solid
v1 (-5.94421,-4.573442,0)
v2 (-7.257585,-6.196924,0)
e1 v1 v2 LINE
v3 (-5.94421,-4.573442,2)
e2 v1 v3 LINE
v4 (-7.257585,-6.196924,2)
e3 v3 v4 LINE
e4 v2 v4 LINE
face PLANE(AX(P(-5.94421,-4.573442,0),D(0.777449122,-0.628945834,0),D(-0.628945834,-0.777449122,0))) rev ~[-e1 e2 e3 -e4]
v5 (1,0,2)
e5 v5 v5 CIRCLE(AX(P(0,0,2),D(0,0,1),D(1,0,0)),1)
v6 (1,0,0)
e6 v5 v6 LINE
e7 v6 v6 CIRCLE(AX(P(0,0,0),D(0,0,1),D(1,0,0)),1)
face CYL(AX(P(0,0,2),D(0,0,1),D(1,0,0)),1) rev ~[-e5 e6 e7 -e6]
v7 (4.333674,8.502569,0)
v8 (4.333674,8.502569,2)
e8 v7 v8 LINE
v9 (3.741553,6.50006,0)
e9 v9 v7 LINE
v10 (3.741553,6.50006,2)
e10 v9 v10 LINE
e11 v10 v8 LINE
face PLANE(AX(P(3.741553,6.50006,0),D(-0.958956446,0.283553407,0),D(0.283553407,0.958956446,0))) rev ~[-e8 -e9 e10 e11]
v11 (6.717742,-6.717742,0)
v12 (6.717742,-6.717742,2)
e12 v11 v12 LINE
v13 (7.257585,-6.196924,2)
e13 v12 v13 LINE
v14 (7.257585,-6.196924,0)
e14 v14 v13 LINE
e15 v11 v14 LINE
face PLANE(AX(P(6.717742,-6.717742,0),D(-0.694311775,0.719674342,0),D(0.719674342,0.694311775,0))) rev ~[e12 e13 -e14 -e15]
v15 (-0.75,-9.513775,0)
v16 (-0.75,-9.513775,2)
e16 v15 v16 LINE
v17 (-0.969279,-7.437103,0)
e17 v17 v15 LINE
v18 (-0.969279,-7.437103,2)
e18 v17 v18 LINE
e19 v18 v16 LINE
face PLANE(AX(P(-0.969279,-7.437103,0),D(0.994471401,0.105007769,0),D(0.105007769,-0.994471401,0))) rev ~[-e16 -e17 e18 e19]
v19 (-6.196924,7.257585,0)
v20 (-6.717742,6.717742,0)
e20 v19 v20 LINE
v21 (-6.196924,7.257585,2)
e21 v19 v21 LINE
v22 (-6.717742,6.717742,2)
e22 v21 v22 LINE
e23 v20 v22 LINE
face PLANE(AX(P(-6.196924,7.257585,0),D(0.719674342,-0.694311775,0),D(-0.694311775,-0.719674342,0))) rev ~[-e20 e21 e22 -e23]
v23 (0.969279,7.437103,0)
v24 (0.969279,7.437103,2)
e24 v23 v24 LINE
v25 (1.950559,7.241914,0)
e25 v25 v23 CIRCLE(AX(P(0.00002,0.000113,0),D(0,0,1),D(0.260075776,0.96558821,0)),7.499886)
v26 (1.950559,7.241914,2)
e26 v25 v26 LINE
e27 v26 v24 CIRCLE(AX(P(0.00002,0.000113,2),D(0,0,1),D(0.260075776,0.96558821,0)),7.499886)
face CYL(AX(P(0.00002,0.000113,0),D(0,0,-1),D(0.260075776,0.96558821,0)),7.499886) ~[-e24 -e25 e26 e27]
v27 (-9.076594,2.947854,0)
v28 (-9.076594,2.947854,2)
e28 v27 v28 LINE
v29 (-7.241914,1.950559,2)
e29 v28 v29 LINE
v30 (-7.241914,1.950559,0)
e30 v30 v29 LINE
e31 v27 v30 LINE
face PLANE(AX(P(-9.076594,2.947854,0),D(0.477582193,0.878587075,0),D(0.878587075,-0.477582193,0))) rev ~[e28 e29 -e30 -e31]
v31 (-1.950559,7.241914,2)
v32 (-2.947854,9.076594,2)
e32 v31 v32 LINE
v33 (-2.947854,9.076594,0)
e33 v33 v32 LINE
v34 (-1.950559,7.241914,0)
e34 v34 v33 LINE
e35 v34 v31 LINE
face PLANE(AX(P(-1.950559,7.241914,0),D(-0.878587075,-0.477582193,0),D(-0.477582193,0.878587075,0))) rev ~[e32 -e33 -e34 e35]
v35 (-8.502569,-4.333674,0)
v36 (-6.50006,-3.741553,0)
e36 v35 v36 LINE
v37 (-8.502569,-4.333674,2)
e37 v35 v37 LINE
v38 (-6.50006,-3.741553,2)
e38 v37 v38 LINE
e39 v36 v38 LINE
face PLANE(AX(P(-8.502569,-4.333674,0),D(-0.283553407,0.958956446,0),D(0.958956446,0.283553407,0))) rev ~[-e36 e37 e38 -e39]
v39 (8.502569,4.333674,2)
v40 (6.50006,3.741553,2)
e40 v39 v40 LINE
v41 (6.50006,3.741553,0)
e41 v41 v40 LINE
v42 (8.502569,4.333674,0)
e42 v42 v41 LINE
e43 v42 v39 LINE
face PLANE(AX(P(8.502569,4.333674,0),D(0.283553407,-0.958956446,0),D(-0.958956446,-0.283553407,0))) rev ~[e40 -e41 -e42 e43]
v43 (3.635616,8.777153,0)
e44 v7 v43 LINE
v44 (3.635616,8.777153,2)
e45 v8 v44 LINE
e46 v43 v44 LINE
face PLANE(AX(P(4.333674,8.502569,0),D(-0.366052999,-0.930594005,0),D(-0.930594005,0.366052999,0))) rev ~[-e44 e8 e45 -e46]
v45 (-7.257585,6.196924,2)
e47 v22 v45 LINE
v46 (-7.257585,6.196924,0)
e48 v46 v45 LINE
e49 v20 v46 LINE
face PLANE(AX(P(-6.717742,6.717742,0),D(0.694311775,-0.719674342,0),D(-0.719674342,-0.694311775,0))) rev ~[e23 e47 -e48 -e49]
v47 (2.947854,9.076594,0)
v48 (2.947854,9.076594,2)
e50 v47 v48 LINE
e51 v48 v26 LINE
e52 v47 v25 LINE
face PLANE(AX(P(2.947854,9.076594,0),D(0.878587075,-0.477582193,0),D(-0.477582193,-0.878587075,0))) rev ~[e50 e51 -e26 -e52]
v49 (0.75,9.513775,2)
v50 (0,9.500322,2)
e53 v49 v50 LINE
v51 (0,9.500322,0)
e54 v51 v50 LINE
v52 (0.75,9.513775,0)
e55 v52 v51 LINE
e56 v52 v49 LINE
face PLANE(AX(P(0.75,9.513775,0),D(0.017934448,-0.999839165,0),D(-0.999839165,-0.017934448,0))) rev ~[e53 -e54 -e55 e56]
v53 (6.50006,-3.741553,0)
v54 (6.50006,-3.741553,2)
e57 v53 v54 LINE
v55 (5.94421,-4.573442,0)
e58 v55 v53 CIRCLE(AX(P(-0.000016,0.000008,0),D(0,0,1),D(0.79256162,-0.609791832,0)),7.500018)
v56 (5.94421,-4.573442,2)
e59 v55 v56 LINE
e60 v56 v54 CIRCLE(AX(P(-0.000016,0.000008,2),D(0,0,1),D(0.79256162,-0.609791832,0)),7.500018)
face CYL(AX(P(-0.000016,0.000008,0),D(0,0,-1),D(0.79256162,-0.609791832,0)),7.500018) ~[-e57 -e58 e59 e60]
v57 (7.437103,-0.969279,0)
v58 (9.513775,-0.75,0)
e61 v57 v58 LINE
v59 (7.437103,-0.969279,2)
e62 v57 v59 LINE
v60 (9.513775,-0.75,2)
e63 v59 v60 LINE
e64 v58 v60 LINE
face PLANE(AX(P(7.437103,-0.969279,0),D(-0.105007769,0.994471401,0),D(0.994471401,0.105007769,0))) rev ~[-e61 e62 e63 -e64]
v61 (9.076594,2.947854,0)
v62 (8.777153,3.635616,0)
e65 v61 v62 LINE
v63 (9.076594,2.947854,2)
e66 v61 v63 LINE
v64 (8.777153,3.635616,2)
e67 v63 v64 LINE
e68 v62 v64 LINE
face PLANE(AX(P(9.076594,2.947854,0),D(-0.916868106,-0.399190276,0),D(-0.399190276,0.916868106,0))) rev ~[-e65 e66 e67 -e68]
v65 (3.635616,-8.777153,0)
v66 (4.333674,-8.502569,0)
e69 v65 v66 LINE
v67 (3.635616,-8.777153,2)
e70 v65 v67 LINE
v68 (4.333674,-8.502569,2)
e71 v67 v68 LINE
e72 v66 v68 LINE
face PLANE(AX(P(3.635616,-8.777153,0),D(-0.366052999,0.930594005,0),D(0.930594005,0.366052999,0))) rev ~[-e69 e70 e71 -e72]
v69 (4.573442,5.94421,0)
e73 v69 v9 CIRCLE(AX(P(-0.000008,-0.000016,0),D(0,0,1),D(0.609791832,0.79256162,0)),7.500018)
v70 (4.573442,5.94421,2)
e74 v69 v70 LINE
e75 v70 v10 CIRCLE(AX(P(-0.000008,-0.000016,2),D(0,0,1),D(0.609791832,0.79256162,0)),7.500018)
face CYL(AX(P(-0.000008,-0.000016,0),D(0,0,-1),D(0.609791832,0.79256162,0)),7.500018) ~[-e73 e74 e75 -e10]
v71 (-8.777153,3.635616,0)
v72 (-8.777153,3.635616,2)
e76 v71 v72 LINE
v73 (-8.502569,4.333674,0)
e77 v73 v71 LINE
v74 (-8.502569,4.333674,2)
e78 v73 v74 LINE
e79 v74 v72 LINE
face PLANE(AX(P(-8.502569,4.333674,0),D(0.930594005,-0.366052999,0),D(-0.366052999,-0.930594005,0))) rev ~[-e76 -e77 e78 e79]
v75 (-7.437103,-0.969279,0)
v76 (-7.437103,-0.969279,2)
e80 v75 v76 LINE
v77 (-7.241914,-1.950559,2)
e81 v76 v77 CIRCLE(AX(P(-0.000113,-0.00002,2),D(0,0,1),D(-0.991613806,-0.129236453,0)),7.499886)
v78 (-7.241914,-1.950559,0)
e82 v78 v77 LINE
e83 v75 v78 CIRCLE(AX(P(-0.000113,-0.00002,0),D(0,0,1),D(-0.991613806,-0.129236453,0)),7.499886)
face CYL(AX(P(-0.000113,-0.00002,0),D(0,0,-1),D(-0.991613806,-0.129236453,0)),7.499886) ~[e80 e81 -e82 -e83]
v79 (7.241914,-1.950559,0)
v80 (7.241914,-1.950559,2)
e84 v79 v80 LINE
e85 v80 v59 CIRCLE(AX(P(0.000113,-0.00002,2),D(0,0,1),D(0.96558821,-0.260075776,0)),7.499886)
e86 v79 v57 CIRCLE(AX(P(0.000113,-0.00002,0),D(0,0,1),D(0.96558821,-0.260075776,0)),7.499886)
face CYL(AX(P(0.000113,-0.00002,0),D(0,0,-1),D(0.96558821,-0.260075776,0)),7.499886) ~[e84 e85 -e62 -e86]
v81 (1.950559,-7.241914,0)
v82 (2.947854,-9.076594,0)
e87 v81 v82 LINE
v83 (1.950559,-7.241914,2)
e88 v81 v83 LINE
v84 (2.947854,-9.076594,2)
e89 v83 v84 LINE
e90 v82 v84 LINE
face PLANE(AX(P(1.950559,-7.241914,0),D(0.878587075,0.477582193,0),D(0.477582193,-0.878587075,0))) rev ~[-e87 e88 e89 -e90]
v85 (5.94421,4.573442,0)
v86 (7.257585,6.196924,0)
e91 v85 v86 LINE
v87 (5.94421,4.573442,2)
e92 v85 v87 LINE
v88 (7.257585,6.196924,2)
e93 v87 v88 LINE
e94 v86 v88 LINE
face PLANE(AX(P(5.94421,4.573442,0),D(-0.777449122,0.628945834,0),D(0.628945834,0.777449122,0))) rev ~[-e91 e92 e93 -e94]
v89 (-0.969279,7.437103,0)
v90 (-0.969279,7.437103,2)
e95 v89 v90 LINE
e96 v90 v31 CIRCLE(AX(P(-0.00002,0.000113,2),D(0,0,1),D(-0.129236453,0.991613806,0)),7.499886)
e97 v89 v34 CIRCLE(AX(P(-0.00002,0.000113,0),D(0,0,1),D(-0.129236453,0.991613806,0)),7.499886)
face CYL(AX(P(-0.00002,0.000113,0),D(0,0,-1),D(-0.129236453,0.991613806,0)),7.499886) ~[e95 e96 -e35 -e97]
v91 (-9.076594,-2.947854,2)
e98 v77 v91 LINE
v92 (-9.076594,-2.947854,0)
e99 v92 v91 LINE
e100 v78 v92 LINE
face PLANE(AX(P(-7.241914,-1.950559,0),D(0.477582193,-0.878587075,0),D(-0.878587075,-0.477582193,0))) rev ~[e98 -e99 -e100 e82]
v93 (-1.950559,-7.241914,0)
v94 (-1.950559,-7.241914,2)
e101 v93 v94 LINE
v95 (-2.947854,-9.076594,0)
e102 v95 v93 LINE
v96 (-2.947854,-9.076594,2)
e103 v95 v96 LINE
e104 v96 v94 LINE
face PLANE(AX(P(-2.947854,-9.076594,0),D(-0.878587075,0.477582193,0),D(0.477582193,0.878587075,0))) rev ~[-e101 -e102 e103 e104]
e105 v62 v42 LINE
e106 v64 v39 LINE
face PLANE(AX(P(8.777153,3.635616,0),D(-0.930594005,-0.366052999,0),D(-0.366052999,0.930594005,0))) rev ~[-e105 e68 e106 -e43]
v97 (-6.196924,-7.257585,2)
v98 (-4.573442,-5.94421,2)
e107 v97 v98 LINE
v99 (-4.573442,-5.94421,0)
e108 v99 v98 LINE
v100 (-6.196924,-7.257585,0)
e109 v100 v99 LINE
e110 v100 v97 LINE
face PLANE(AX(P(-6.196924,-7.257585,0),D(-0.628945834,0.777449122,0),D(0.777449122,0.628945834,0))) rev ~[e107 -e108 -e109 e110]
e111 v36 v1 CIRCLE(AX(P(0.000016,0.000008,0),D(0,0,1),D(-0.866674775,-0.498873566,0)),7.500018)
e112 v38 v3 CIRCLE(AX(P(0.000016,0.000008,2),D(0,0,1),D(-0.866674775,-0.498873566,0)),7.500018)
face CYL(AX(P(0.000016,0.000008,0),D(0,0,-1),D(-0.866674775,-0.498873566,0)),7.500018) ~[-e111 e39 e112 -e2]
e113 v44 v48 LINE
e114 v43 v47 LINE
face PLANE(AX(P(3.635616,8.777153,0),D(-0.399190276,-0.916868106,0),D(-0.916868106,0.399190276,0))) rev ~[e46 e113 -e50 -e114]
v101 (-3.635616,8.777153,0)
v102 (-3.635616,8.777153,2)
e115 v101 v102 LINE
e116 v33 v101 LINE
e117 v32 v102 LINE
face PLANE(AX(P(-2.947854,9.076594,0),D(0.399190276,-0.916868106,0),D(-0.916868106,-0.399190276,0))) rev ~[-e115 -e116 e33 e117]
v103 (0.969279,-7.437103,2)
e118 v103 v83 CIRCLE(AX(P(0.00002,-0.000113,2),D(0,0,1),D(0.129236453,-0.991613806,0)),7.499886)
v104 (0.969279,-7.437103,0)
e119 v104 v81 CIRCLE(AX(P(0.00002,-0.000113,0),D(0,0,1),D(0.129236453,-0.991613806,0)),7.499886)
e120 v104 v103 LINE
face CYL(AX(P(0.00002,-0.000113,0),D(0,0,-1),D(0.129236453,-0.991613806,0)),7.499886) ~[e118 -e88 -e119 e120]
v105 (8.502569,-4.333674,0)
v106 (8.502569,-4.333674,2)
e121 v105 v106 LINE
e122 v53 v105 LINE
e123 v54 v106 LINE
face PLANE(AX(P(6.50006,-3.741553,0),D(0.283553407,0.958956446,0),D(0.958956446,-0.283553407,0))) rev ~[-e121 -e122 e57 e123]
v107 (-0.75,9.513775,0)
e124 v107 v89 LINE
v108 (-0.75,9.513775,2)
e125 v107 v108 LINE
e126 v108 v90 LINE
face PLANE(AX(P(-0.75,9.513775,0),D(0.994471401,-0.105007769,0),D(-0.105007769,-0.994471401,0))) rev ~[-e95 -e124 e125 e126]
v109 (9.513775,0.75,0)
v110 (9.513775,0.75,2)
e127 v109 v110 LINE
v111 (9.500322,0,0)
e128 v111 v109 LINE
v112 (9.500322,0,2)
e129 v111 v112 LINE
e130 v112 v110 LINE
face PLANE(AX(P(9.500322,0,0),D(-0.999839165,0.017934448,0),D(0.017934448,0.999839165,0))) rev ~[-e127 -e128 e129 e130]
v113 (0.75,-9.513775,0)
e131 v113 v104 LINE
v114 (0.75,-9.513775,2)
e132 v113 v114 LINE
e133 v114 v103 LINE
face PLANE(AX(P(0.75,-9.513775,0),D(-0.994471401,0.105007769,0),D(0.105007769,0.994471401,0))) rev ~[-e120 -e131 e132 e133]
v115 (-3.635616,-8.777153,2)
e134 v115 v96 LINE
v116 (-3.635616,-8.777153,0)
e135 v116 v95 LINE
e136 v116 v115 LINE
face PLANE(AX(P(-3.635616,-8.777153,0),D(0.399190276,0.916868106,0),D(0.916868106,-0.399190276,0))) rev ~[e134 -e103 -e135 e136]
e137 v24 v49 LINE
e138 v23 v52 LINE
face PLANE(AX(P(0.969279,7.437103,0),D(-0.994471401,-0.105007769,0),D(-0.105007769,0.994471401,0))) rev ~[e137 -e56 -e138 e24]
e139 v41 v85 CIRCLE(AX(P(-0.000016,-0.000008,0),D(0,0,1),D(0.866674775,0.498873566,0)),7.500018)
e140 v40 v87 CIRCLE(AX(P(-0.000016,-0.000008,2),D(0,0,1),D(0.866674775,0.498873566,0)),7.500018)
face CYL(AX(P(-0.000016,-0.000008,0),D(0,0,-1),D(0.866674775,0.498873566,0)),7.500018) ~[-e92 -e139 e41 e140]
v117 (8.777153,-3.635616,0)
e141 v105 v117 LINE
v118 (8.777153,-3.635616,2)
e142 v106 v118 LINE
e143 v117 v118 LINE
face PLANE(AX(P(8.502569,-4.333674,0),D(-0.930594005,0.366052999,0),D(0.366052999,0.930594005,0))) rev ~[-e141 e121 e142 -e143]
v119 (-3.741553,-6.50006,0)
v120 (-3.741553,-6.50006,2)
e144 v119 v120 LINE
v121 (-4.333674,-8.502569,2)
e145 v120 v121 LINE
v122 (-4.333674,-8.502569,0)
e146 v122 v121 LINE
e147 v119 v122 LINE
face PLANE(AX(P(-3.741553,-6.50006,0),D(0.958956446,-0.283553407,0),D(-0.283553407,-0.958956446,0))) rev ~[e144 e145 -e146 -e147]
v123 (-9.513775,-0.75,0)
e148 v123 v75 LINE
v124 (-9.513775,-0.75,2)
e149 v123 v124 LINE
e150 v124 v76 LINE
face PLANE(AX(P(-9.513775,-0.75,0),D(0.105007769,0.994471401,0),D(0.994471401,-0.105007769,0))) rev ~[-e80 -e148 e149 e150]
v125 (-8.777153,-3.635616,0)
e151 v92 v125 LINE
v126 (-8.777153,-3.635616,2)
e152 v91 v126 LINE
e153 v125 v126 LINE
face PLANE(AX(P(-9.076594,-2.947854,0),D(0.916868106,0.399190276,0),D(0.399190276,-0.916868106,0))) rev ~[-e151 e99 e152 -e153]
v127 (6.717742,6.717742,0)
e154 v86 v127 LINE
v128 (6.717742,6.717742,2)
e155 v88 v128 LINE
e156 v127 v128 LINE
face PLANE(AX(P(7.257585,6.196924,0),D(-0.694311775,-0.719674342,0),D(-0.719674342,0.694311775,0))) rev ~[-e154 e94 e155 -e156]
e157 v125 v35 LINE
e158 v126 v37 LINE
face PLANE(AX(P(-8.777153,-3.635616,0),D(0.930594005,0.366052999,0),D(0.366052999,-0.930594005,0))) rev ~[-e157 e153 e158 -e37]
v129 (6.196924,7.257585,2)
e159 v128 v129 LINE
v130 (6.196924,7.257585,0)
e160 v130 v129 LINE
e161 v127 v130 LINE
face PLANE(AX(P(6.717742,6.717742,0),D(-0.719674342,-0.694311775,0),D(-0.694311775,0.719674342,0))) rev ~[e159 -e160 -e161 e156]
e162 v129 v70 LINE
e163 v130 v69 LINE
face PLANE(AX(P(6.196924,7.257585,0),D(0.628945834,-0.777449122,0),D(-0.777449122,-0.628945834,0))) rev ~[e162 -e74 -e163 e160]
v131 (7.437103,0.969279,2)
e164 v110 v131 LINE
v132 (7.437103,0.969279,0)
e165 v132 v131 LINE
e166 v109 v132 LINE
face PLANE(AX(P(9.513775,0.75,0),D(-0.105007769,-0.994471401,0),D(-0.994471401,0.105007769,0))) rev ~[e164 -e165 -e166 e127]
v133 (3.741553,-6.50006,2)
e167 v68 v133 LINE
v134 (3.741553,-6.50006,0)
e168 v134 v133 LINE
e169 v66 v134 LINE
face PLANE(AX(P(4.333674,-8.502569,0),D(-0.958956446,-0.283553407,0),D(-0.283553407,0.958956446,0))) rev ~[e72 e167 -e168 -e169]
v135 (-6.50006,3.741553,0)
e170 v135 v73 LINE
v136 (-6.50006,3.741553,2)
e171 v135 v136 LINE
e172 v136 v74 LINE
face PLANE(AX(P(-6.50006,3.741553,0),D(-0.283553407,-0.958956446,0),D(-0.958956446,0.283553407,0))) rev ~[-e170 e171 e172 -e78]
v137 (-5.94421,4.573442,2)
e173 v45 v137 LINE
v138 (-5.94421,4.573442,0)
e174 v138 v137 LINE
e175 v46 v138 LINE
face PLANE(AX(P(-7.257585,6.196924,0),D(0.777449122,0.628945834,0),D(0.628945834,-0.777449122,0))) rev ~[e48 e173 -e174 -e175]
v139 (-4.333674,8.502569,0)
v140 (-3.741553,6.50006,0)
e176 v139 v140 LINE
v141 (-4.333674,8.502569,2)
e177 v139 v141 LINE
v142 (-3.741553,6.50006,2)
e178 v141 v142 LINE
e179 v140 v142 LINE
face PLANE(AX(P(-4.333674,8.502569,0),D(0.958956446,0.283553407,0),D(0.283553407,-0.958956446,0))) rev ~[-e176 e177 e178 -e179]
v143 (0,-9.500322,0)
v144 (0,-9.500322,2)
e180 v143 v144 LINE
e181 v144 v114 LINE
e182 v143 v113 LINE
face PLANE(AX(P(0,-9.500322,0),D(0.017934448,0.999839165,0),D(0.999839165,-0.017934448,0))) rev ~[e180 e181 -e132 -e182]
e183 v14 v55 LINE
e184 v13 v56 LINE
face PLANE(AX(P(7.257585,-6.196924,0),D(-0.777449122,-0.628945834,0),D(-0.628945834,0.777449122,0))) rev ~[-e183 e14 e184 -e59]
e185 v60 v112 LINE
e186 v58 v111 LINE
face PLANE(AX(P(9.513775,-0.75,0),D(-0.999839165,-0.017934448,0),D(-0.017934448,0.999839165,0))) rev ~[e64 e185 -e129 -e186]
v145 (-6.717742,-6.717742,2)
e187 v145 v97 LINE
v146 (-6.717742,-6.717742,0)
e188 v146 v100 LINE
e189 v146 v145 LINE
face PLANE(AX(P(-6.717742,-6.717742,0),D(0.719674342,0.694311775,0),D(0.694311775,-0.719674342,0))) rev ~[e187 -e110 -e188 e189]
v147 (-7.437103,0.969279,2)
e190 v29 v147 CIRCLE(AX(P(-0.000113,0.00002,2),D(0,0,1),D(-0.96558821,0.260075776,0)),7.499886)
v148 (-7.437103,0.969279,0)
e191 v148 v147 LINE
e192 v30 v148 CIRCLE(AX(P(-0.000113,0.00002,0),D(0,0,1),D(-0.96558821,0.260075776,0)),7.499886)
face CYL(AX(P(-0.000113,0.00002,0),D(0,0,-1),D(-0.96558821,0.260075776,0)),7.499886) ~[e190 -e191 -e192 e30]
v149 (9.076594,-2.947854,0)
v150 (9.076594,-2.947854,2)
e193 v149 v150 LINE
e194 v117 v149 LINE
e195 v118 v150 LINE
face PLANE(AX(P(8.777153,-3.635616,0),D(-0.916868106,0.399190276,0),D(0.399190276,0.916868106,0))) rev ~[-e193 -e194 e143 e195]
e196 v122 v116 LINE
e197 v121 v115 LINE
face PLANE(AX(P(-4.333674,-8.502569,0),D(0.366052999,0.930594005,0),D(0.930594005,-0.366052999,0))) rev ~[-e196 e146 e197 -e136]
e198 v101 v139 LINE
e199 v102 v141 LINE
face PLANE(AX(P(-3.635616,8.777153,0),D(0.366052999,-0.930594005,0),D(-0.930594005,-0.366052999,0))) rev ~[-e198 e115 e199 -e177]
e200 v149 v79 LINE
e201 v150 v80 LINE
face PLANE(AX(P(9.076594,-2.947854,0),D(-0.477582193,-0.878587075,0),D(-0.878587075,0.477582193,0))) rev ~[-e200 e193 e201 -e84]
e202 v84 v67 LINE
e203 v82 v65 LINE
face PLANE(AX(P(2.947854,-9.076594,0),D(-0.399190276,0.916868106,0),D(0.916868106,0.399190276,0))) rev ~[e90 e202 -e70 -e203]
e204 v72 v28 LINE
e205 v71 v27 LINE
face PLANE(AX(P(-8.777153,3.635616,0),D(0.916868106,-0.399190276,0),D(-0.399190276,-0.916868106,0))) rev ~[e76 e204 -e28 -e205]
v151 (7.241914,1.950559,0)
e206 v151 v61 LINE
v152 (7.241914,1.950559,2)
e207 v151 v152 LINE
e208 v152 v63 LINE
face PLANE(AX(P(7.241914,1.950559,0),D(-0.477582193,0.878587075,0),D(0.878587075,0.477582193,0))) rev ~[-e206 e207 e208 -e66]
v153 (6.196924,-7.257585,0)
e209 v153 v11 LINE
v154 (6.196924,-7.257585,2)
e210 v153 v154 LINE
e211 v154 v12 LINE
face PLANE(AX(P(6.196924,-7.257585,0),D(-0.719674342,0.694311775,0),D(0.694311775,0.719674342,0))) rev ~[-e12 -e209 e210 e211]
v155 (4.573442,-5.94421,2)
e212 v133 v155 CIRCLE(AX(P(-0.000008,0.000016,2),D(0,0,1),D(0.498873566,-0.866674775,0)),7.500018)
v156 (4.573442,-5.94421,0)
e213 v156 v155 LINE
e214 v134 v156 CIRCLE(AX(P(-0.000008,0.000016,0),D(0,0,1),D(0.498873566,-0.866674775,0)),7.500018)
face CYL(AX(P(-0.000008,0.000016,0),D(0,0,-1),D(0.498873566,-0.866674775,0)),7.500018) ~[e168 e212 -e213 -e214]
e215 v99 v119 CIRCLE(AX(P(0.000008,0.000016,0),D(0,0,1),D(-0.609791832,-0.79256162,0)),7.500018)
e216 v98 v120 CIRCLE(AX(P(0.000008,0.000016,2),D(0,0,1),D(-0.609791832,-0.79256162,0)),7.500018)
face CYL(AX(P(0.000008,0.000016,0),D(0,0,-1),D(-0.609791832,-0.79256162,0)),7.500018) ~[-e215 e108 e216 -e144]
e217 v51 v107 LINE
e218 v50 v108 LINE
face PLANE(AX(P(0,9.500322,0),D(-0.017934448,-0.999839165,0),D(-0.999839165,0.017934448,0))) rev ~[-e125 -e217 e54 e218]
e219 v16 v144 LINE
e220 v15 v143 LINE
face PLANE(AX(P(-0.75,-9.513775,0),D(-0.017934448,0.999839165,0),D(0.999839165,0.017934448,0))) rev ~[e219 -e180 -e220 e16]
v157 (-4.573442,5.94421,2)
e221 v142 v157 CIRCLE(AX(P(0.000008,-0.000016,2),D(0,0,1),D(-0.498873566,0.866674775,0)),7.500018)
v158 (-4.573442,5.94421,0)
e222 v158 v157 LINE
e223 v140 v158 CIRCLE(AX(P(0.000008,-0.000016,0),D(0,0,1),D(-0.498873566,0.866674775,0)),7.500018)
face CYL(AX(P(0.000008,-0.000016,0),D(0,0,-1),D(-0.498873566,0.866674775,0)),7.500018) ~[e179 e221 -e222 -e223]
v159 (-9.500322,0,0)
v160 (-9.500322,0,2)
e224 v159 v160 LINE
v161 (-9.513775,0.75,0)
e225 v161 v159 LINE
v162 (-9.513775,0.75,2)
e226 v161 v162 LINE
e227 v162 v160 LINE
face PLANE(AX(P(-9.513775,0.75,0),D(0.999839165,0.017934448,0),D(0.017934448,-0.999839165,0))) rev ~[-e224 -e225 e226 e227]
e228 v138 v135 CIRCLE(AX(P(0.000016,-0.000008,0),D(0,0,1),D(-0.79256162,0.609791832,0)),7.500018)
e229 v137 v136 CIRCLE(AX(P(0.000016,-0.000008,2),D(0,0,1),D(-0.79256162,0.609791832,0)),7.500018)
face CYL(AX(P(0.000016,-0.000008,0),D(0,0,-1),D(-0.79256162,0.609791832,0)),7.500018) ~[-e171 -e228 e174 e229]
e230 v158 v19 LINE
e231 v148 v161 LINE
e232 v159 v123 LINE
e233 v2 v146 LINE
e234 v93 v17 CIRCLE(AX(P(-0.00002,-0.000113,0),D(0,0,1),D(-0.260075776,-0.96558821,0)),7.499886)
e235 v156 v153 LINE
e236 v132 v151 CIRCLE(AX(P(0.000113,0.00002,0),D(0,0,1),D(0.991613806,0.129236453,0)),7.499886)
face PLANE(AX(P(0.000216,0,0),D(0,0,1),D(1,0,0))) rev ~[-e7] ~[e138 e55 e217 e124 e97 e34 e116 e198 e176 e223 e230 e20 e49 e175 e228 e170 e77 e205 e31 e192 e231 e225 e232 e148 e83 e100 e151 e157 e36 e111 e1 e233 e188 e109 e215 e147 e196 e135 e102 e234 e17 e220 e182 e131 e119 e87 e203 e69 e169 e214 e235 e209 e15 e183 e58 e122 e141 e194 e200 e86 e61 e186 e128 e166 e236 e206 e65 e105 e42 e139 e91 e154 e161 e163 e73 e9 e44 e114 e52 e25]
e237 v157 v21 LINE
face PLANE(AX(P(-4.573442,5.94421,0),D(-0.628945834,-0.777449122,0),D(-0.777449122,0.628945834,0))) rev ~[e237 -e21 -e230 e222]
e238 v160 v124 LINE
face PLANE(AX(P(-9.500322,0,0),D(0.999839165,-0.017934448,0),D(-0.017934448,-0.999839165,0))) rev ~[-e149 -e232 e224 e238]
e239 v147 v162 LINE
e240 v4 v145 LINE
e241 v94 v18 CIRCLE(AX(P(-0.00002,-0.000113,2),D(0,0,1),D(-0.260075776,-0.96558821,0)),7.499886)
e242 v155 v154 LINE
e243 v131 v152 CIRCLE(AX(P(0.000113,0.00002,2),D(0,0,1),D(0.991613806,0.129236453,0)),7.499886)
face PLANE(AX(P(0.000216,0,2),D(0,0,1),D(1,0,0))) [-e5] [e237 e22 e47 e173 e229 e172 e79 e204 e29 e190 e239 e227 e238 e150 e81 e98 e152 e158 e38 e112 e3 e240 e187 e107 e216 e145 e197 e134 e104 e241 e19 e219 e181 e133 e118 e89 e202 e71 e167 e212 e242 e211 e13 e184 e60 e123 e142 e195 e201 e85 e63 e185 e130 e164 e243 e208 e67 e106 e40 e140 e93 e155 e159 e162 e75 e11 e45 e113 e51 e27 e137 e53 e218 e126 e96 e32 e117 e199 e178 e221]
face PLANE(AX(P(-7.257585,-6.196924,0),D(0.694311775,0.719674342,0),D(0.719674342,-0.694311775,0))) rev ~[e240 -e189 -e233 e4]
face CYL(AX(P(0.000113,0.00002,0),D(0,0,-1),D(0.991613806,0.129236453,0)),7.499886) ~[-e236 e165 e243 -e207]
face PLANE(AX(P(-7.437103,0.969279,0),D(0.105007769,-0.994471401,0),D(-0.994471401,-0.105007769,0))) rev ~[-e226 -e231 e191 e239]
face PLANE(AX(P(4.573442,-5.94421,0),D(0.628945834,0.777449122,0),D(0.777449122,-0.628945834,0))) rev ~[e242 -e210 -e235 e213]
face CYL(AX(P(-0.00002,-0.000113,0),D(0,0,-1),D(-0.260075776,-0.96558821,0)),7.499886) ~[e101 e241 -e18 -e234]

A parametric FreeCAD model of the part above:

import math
import FreeCAD as App
import Part
import Sketcher
from FreeCAD import Vector
Q = App.Units.Quantity

doc = App.newDocument("Part")
params = doc.addObject("Spreadsheet::Sheet", "Params")
for row, (alias, value) in enumerate([
    ("pad1_length", "2 mm"),
    ("sketch2_diameter", "2 mm"),
], start=1):
    params.set(f"A{row}", alias)
    params.set(f"B{row}", "=" + value)
    params.setAlias(f"B{row}", alias)

body = doc.addObject("PartDesign::Body", "Body")

# Sketch on XY plane
sketch1 = body.newObject("Sketcher::SketchObject", "Sketch")
sketch1.AttachmentSupport = (doc.getObject("XY_Plane"), [""])
sketch1.MapMode = "FlatFace"
sketch1.addGeometry([
    Part.ArcOfCircle(Part.Circle(Vector(0.000113, 0.00002, 0), Vector(0, 0, 1), 7.499886), math.radians(7.425472), math.radians(15.074558)),  # 0
    Part.LineSegment(Vector(7.241914, 1.950559, 0), Vector(9.076594, 2.947854, 0)),  # 1
    Part.LineSegment(Vector(9.076594, 2.947854, 0), Vector(8.777153, 3.635616, 0)),  # 2
    Part.LineSegment(Vector(8.777153, 3.635616, 0), Vector(8.502569, 4.333674, 0)),  # 3
    Part.LineSegment(Vector(8.502569, 4.333674, 0), Vector(6.50006, 3.741553, 0)),  # 4
    Part.ArcOfCircle(Part.Circle(Vector(-0.000016, -0.000008, 0), Vector(0, 0, 1), 7.500018), math.radians(29.925504), math.radians(37.574453)),  # 5
    Part.LineSegment(Vector(5.94421, 4.573442, 0), Vector(7.257585, 6.196924, 0)),  # 6
    Part.LineSegment(Vector(7.257585, 6.196924, 0), Vector(6.717742, 6.717742, 0)),  # 7
    Part.LineSegment(Vector(6.717742, 6.717742, 0), Vector(6.196924, 7.257585, 0)),  # 8
    Part.LineSegment(Vector(6.196924, 7.257585, 0), Vector(4.573442, 5.94421, 0)),  # 9
    Part.ArcOfCircle(Part.Circle(Vector(-0.000008, -0.000016, 0), Vector(0, 0, 1), 7.500018), math.radians(52.425547), math.radians(60.074496)),  # 10
    Part.LineSegment(Vector(3.741553, 6.50006, 0), Vector(4.333674, 8.502569, 0)),  # 11
    Part.LineSegment(Vector(4.333674, 8.502569, 0), Vector(3.635616, 8.777153, 0)),  # 12
    Part.LineSegment(Vector(3.635616, 8.777153, 0), Vector(2.947854, 9.076594, 0)),  # 13
    Part.LineSegment(Vector(2.947854, 9.076594, 0), Vector(1.950559, 7.241914, 0)),  # 14
    Part.ArcOfCircle(Part.Circle(Vector(0.00002, 0.000113, 0), Vector(0, 0, 1), 7.499886), math.radians(74.925442), math.radians(82.574528)),  # 15
    Part.LineSegment(Vector(0.969279, 7.437103, 0), Vector(0.75, 9.513775, 0)),  # 16
    Part.LineSegment(Vector(0.75, 9.513775, 0), Vector(0, 9.500322, 0)),  # 17
    Part.LineSegment(Vector(0, 9.500322, 0), Vector(-0.75, 9.513775, 0)),  # 18
    Part.LineSegment(Vector(-0.75, 9.513775, 0), Vector(-0.969279, 7.437103, 0)),  # 19
    Part.ArcOfCircle(Part.Circle(Vector(-0.00002, 0.000113, 0), Vector(0, 0, 1), 7.499886), math.radians(97.425472), math.radians(105.074558)),  # 20
    Part.LineSegment(Vector(-1.950559, 7.241914, 0), Vector(-2.947854, 9.076594, 0)),  # 21
    Part.LineSegment(Vector(-2.947854, 9.076594, 0), Vector(-3.635616, 8.777153, 0)),  # 22
    Part.LineSegment(Vector(-3.635616, 8.777153, 0), Vector(-4.333674, 8.502569, 0)),  # 23
    Part.LineSegment(Vector(-4.333674, 8.502569, 0), Vector(-3.741553, 6.50006, 0)),  # 24
    Part.ArcOfCircle(Part.Circle(Vector(0.000008, -0.000016, 0), Vector(0, 0, 1), 7.500018), math.radians(119.925504), math.radians(127.574453)),  # 25
    Part.LineSegment(Vector(-4.573442, 5.94421, 0), Vector(-6.196924, 7.257585, 0)),  # 26
    Part.LineSegment(Vector(-6.196924, 7.257585, 0), Vector(-6.717742, 6.717742, 0)),  # 27
    Part.LineSegment(Vector(-6.717742, 6.717742, 0), Vector(-7.257585, 6.196924, 0)),  # 28
    Part.LineSegment(Vector(-7.257585, 6.196924, 0), Vector(-5.94421, 4.573442, 0)),  # 29
    Part.ArcOfCircle(Part.Circle(Vector(0.000016, -0.000008, 0), Vector(0, 0, 1), 7.500018), math.radians(142.425547), math.radians(150.074496)),  # 30
    Part.LineSegment(Vector(-6.50006, 3.741553, 0), Vector(-8.502569, 4.333674, 0)),  # 31
    Part.LineSegment(Vector(-8.502569, 4.333674, 0), Vector(-8.777153, 3.635616, 0)),  # 32
    Part.LineSegment(Vector(-8.777153, 3.635616, 0), Vector(-9.076594, 2.947854, 0)),  # 33
    Part.LineSegment(Vector(-9.076594, 2.947854, 0), Vector(-7.241914, 1.950559, 0)),  # 34
    Part.ArcOfCircle(Part.Circle(Vector(-0.000113, 0.00002, 0), Vector(0, 0, 1), 7.499886), math.radians(164.925442), math.radians(172.574528)),  # 35
    Part.LineSegment(Vector(-7.437103, 0.969279, 0), Vector(-9.513775, 0.75, 0)),  # 36
    Part.LineSegment(Vector(-9.513775, 0.75, 0), Vector(-9.500322, 0, 0)),  # 37
    Part.LineSegment(Vector(-9.500322, 0, 0), Vector(-9.513775, -0.75, 0)),  # 38
    Part.LineSegment(Vector(-9.513775, -0.75, 0), Vector(-7.437103, -0.969279, 0)),  # 39
    Part.ArcOfCircle(Part.Circle(Vector(-0.000113, -0.00002, 0), Vector(0, 0, 1), 7.499886), math.radians(-172.574528), math.radians(-164.925442)),  # 40
    Part.LineSegment(Vector(-7.241914, -1.950559, 0), Vector(-9.076594, -2.947854, 0)),  # 41
    Part.LineSegment(Vector(-9.076594, -2.947854, 0), Vector(-8.777153, -3.635616, 0)),  # 42
    Part.LineSegment(Vector(-8.777153, -3.635616, 0), Vector(-8.502569, -4.333674, 0)),  # 43
    Part.LineSegment(Vector(-8.502569, -4.333674, 0), Vector(-6.50006, -3.741553, 0)),  # 44
    Part.ArcOfCircle(Part.Circle(Vector(0.000016, 0.000008, 0), Vector(0, 0, 1), 7.500018), math.radians(-150.074496), math.radians(-142.425547)),  # 45
    Part.LineSegment(Vector(-5.94421, -4.573442, 0), Vector(-7.257585, -6.196924, 0)),  # 46
    Part.LineSegment(Vector(-7.257585, -6.196924, 0), Vector(-6.717742, -6.717742, 0)),  # 47
    Part.LineSegment(Vector(-6.717742, -6.717742, 0), Vector(-6.196924, -7.257585, 0)),  # 48
    Part.LineSegment(Vector(-6.196924, -7.257585, 0), Vector(-4.573442, -5.94421, 0)),  # 49
    Part.ArcOfCircle(Part.Circle(Vector(0.000008, 0.000016, 0), Vector(0, 0, 1), 7.500018), math.radians(-127.574453), math.radians(-119.925504)),  # 50
    Part.LineSegment(Vector(-3.741553, -6.50006, 0), Vector(-4.333674, -8.502569, 0)),  # 51
    Part.LineSegment(Vector(-4.333674, -8.502569, 0), Vector(-3.635616, -8.777153, 0)),  # 52
    Part.LineSegment(Vector(-3.635616, -8.777153, 0), Vector(-2.947854, -9.076594, 0)),  # 53
    Part.LineSegment(Vector(-2.947854, -9.076594, 0), Vector(-1.950559, -7.241914, 0)),  # 54
    Part.ArcOfCircle(Part.Circle(Vector(-0.00002, -0.000113, 0), Vector(0, 0, 1), 7.499886), math.radians(-105.074558), math.radians(-97.425472)),  # 55
    Part.LineSegment(Vector(-0.969279, -7.437103, 0), Vector(-0.75, -9.513775, 0)),  # 56
    Part.LineSegment(Vector(-0.75, -9.513775, 0), Vector(0, -9.500322, 0)),  # 57
    Part.LineSegment(Vector(0, -9.500322, 0), Vector(0.75, -9.513775, 0)),  # 58
    Part.LineSegment(Vector(0.75, -9.513775, 0), Vector(0.969279, -7.437103, 0)),  # 59
    Part.ArcOfCircle(Part.Circle(Vector(0.00002, -0.000113, 0), Vector(0, 0, 1), 7.499886), math.radians(-82.574528), math.radians(-74.925442)),  # 60
    Part.LineSegment(Vector(1.950559, -7.241914, 0), Vector(2.947854, -9.076594, 0)),  # 61
    Part.LineSegment(Vector(2.947854, -9.076594, 0), Vector(3.635616, -8.777153, 0)),  # 62
    Part.LineSegment(Vector(3.635616, -8.777153, 0), Vector(4.333674, -8.502569, 0)),  # 63
    Part.LineSegment(Vector(4.333674, -8.502569, 0), Vector(3.741553, -6.50006, 0)),  # 64
    Part.ArcOfCircle(Part.Circle(Vector(-0.000008, 0.000016, 0), Vector(0, 0, 1), 7.500018), math.radians(-60.074496), math.radians(-52.425547)),  # 65
    Part.LineSegment(Vector(4.573442, -5.94421, 0), Vector(6.196924, -7.257585, 0)),  # 66
    Part.LineSegment(Vector(6.196924, -7.257585, 0), Vector(6.717742, -6.717742, 0)),  # 67
    Part.LineSegment(Vector(6.717742, -6.717742, 0), Vector(7.257585, -6.196924, 0)),  # 68
    Part.LineSegment(Vector(7.257585, -6.196924, 0), Vector(5.94421, -4.573442, 0)),  # 69
    Part.ArcOfCircle(Part.Circle(Vector(-0.000016, 0.000008, 0), Vector(0, 0, 1), 7.500018), math.radians(-37.574453), math.radians(-29.925504)),  # 70
    Part.LineSegment(Vector(6.50006, -3.741553, 0), Vector(8.502569, -4.333674, 0)),  # 71
    Part.LineSegment(Vector(8.502569, -4.333674, 0), Vector(8.777153, -3.635616, 0)),  # 72
    Part.LineSegment(Vector(8.777153, -3.635616, 0), Vector(9.076594, -2.947854, 0)),  # 73
    Part.LineSegment(Vector(9.076594, -2.947854, 0), Vector(7.241914, -1.950559, 0)),  # 74
    Part.ArcOfCircle(Part.Circle(Vector(0.000113, -0.00002, 0), Vector(0, 0, 1), 7.499886), math.radians(-15.074558), math.radians(-7.425472)),  # 75
    Part.LineSegment(Vector(7.437103, -0.969279, 0), Vector(9.513775, -0.75, 0)),  # 76
    Part.LineSegment(Vector(9.513775, -0.75, 0), Vector(9.500322, 0, 0)),  # 77
    Part.LineSegment(Vector(9.500322, 0, 0), Vector(9.513775, 0.75, 0)),  # 78
    Part.LineSegment(Vector(9.513775, 0.75, 0), Vector(7.437103, 0.969279, 0)),  # 79
], False)
sketch1.addConstraint([
    Sketcher.Constraint("Coincident", 0, 2, 1, 1),
    Sketcher.Constraint("Coincident", 1, 2, 2, 1),
    Sketcher.Constraint("Coincident", 2, 2, 3, 1),
    Sketcher.Constraint("Coincident", 3, 2, 4, 1),
    Sketcher.Constraint("Coincident", 4, 2, 5, 1),
    Sketcher.Constraint("Coincident", 5, 2, 6, 1),
    Sketcher.Constraint("Coincident", 6, 2, 7, 1),
    Sketcher.Constraint("Coincident", 7, 2, 8, 1),
    Sketcher.Constraint("Coincident", 8, 2, 9, 1),
    Sketcher.Constraint("Coincident", 9, 2, 10, 1),
    Sketcher.Constraint("Coincident", 10, 2, 11, 1),
    Sketcher.Constraint("Coincident", 11, 2, 12, 1),
    Sketcher.Constraint("Coincident", 12, 2, 13, 1),
    Sketcher.Constraint("Coincident", 13, 2, 14, 1),
    Sketcher.Constraint("Coincident", 14, 2, 15, 1),
    Sketcher.Constraint("Coincident", 15, 2, 16, 1),
    Sketcher.Constraint("Coincident", 16, 2, 17, 1),
    Sketcher.Constraint("Coincident", 17, 2, 18, 1),
    Sketcher.Constraint("Coincident", 18, 2, 19, 1),
    Sketcher.Constraint("Coincident", 19, 2, 20, 1),
    Sketcher.Constraint("Coincident", 20, 2, 21, 1),
    Sketcher.Constraint("Coincident", 21, 2, 22, 1),
    Sketcher.Constraint("Coincident", 22, 2, 23, 1),
    Sketcher.Constraint("Coincident", 23, 2, 24, 1),
    Sketcher.Constraint("Coincident", 24, 2, 25, 1),
    Sketcher.Constraint("Coincident", 25, 2, 26, 1),
    Sketcher.Constraint("Coincident", 26, 2, 27, 1),
    Sketcher.Constraint("Coincident", 27, 2, 28, 1),
    Sketcher.Constraint("Coincident", 28, 2, 29, 1),
    Sketcher.Constraint("Coincident", 29, 2, 30, 1),
    Sketcher.Constraint("Coincident", 30, 2, 31, 1),
    Sketcher.Constraint("Coincident", 31, 2, 32, 1),
    Sketcher.Constraint("Coincident", 32, 2, 33, 1),
    Sketcher.Constraint("Coincident", 33, 2, 34, 1),
    Sketcher.Constraint("Coincident", 34, 2, 35, 1),
    Sketcher.Constraint("Coincident", 35, 2, 36, 1),
    Sketcher.Constraint("Coincident", 36, 2, 37, 1),
    Sketcher.Constraint("Coincident", 37, 2, 38, 1),
    Sketcher.Constraint("Coincident", 38, 2, 39, 1),
    Sketcher.Constraint("Coincident", 39, 2, 40, 1),
    Sketcher.Constraint("Coincident", 40, 2, 41, 1),
    Sketcher.Constraint("Coincident", 41, 2, 42, 1),
    Sketcher.Constraint("Coincident", 42, 2, 43, 1),
    Sketcher.Constraint("Coincident", 43, 2, 44, 1),
    Sketcher.Constraint("Coincident", 44, 2, 45, 1),
    Sketcher.Constraint("Coincident", 45, 2, 46, 1),
    Sketcher.Constraint("Coincident", 46, 2, 47, 1),
    Sketcher.Constraint("Coincident", 47, 2, 48, 1),
    Sketcher.Constraint("Coincident", 48, 2, 49, 1),
    Sketcher.Constraint("Coincident", 49, 2, 50, 1),
    Sketcher.Constraint("Coincident", 50, 2, 51, 1),
    Sketcher.Constraint("Coincident", 51, 2, 52, 1),
    Sketcher.Constraint("Coincident", 52, 2, 53, 1),
    Sketcher.Constraint("Coincident", 53, 2, 54, 1),
    Sketcher.Constraint("Coincident", 54, 2, 55, 1),
    Sketcher.Constraint("Coincident", 55, 2, 56, 1),
    Sketcher.Constraint("Coincident", 56, 2, 57, 1),
    Sketcher.Constraint("Coincident", 57, 2, 58, 1),
    Sketcher.Constraint("Coincident", 58, 2, 59, 1),
    Sketcher.Constraint("Coincident", 59, 2, 60, 1),
    Sketcher.Constraint("Coincident", 60, 2, 61, 1),
    Sketcher.Constraint("Coincident", 61, 2, 62, 1),
    Sketcher.Constraint("Coincident", 62, 2, 63, 1),
    Sketcher.Constraint("Coincident", 63, 2, 64, 1),
    Sketcher.Constraint("Coincident", 64, 2, 65, 1),
    Sketcher.Constraint("Coincident", 65, 2, 66, 1),
    Sketcher.Constraint("Coincident", 66, 2, 67, 1),
    Sketcher.Constraint("Coincident", 67, 2, 68, 1),
    Sketcher.Constraint("Coincident", 68, 2, 69, 1),
    Sketcher.Constraint("Coincident", 69, 2, 70, 1),
    Sketcher.Constraint("Coincident", 70, 2, 71, 1),
    Sketcher.Constraint("Coincident", 71, 2, 72, 1),
    Sketcher.Constraint("Coincident", 72, 2, 73, 1),
    Sketcher.Constraint("Coincident", 73, 2, 74, 1),
    Sketcher.Constraint("Coincident", 74, 2, 75, 1),
    Sketcher.Constraint("Coincident", 75, 2, 76, 1),
    Sketcher.Constraint("Coincident", 76, 2, 77, 1),
    Sketcher.Constraint("Coincident", 77, 2, 78, 1),
    Sketcher.Constraint("Coincident", 78, 2, 79, 1),
    Sketcher.Constraint("Coincident", 79, 2, 0, 1),
    Sketcher.Constraint("PointOnObject", 17, 2, -2),
    Sketcher.Constraint("PointOnObject", 37, 2, -1),
    Sketcher.Constraint("PointOnObject", 57, 2, -2),
    Sketcher.Constraint("PointOnObject", 77, 2, -1),
    Sketcher.Constraint("DistanceX", -1, 1, 16, 2, Q("0.75 mm")),
    Sketcher.Constraint("DistanceX", 18, 2, -1, 1, Q("0.75 mm")),
    Sketcher.Constraint("DistanceY", -1, 1, 36, 2, Q("0.75 mm")),
    Sketcher.Constraint("DistanceY", 38, 2, -1, 1, Q("0.75 mm")),
    Sketcher.Constraint("DistanceX", 56, 2, -1, 1, Q("0.75 mm")),
    Sketcher.Constraint("DistanceX", -1, 1, 58, 2, Q("0.75 mm")),
    Sketcher.Constraint("DistanceY", 76, 2, -1, 1, Q("0.75 mm")),
    Sketcher.Constraint("DistanceY", -1, 1, 78, 2, Q("0.75 mm")),
    Sketcher.Constraint("Radius", 5, Q("7.500018 mm")),
    Sketcher.Constraint("Radius", 10, Q("7.500018 mm")),
    Sketcher.Constraint("Radius", 25, Q("7.500018 mm")),
    Sketcher.Constraint("Radius", 30, Q("7.500018 mm")),
    Sketcher.Constraint("Radius", 45, Q("7.500018 mm")),
    Sketcher.Constraint("Radius", 50, Q("7.500018 mm")),
    Sketcher.Constraint("Radius", 65, Q("7.500018 mm")),
    Sketcher.Constraint("Radius", 70, Q("7.500018 mm")),
    Sketcher.Constraint("Radius", 0, Q("7.499886 mm")),
    Sketcher.Constraint("Radius", 15, Q("7.499886 mm")),
    Sketcher.Constraint("Radius", 20, Q("7.499886 mm")),
    Sketcher.Constraint("Radius", 35, Q("7.499886 mm")),
    Sketcher.Constraint("Radius", 40, Q("7.499886 mm")),
    Sketcher.Constraint("Radius", 55, Q("7.499886 mm")),
    Sketcher.Constraint("Radius", 60, Q("7.499886 mm")),
    Sketcher.Constraint("Radius", 75, Q("7.499886 mm")),
    Sketcher.Constraint("Distance", 2, Q("0.750121 mm")),
    Sketcher.Constraint("Distance", 3, Q("0.750121 mm")),
    Sketcher.Constraint("Distance", 7, Q("0.750121 mm")),
    Sketcher.Constraint("Distance", 8, Q("0.750121 mm")),
    Sketcher.Constraint("Distance", 12, Q("0.750121 mm")),
    Sketcher.Constraint("Distance", 13, Q("0.750121 mm")),
    Sketcher.Constraint("Distance", 17, Q("0.750121 mm")),
    Sketcher.Constraint("Distance", 18, Q("0.750121 mm")),
    Sketcher.Constraint("Distance", 22, Q("0.750121 mm")),
    Sketcher.Constraint("Distance", 23, Q("0.750121 mm")),
    Sketcher.Constraint("Distance", 27, Q("0.750121 mm")),
    Sketcher.Constraint("Distance", 28, Q("0.750121 mm")),
    Sketcher.Constraint("Distance", 32, Q("0.750121 mm")),
    Sketcher.Constraint("Distance", 33, Q("0.750121 mm")),
    Sketcher.Constraint("Distance", 37, Q("0.750121 mm")),
    Sketcher.Constraint("Distance", 38, Q("0.750121 mm")),
    Sketcher.Constraint("Distance", 42, Q("0.750121 mm")),
    Sketcher.Constraint("Distance", 43, Q("0.750121 mm")),
    Sketcher.Constraint("Distance", 47, Q("0.750121 mm")),
    Sketcher.Constraint("Distance", 48, Q("0.750121 mm")),
    Sketcher.Constraint("Distance", 52, Q("0.750121 mm")),
    Sketcher.Constraint("Distance", 53, Q("0.750121 mm")),
    Sketcher.Constraint("Distance", 57, Q("0.750121 mm")),
    Sketcher.Constraint("Distance", 58, Q("0.750121 mm")),
    Sketcher.Constraint("Distance", 62, Q("0.750121 mm")),
    Sketcher.Constraint("Distance", 63, Q("0.750121 mm")),
    Sketcher.Constraint("Distance", 67, Q("0.750121 mm")),
    Sketcher.Constraint("Distance", 68, Q("0.750121 mm")),
    Sketcher.Constraint("Distance", 72, Q("0.750121 mm")),
    Sketcher.Constraint("Distance", 73, Q("0.750121 mm")),
    Sketcher.Constraint("Distance", 77, Q("0.750121 mm")),
    Sketcher.Constraint("Distance", 78, Q("0.750121 mm")),
    Sketcher.Constraint("DistanceY", -1, 1, 0, 2, Q("1.950559 mm")),
    Sketcher.Constraint("DistanceX", -1, 1, 3, 2, Q("8.502569 mm")),
    Sketcher.Constraint("DistanceX", -1, 1, 4, 2, Q("6.50006 mm")),
    Sketcher.Constraint("DistanceX", -1, 1, 5, 2, Q("5.94421 mm")),
    Sketcher.Constraint("DistanceY", -1, 1, 9, 2, Q("5.94421 mm")),
    Sketcher.Constraint("DistanceY", -1, 1, 10, 2, Q("6.50006 mm")),
    Sketcher.Constraint("DistanceY", -1, 1, 11, 2, Q("8.502569 mm")),
    Sketcher.Constraint("DistanceX", -1, 1, 14, 2, Q("1.950559 mm")),
    Sketcher.Constraint("DistanceX", -1, 1, 15, 2, Q("0.969279 mm")),
    Sketcher.Constraint("DistanceX", 19, 2, -1, 1, Q("0.969279 mm")),
    Sketcher.Constraint("DistanceX", 20, 2, -1, 1, Q("1.950559 mm")),
    Sketcher.Constraint("DistanceY", -1, 1, 23, 2, Q("8.502569 mm")),
    Sketcher.Constraint("DistanceY", -1, 1, 24, 2, Q("6.50006 mm")),
    Sketcher.Constraint("DistanceY", -1, 1, 25, 2, Q("5.94421 mm")),
    Sketcher.Constraint("DistanceX", 29, 2, -1, 1, Q("5.94421 mm")),
    Sketcher.Constraint("DistanceX", 30, 2, -1, 1, Q("6.50006 mm")),
    Sketcher.Constraint("DistanceX", 31, 2, -1, 1, Q("8.502569 mm")),
    Sketcher.Constraint("DistanceY", -1, 1, 34, 2, Q("1.950559 mm")),
    Sketcher.Constraint("DistanceY", -1, 1, 35, 2, Q("0.969279 mm")),
    Sketcher.Constraint("DistanceY", 39, 2, -1, 1, Q("0.969279 mm")),
    Sketcher.Constraint("DistanceY", 40, 2, -1, 1, Q("1.950559 mm")),
    Sketcher.Constraint("DistanceX", 43, 2, -1, 1, Q("8.502569 mm")),
    Sketcher.Constraint("DistanceX", 44, 2, -1, 1, Q("6.50006 mm")),
    Sketcher.Constraint("DistanceX", 45, 2, -1, 1, Q("5.94421 mm")),
    Sketcher.Constraint("DistanceY", 49, 2, -1, 1, Q("5.94421 mm")),
    Sketcher.Constraint("DistanceY", 50, 2, -1, 1, Q("6.50006 mm")),
    Sketcher.Constraint("DistanceY", 51, 2, -1, 1, Q("8.502569 mm")),
    Sketcher.Constraint("DistanceX", 54, 2, -1, 1, Q("1.950559 mm")),
    Sketcher.Constraint("DistanceX", 55, 2, -1, 1, Q("0.969279 mm")),
    Sketcher.Constraint("DistanceX", -1, 1, 59, 2, Q("0.969279 mm")),
    Sketcher.Constraint("DistanceX", -1, 1, 60, 2, Q("1.950559 mm")),
    Sketcher.Constraint("DistanceY", 63, 2, -1, 1, Q("8.502569 mm")),
    Sketcher.Constraint("DistanceY", 64, 2, -1, 1, Q("6.50006 mm")),
    Sketcher.Constraint("DistanceY", 65, 2, -1, 1, Q("5.94421 mm")),
    Sketcher.Constraint("DistanceX", -1, 1, 69, 2, Q("5.94421 mm")),
    Sketcher.Constraint("DistanceX", -1, 1, 70, 2, Q("6.50006 mm")),
    Sketcher.Constraint("DistanceX", -1, 1, 71, 2, Q("8.502569 mm")),
    Sketcher.Constraint("DistanceY", 74, 2, -1, 1, Q("1.950559 mm")),
    Sketcher.Constraint("DistanceY", 75, 2, -1, 1, Q("0.969279 mm")),
    Sketcher.Constraint("DistanceY", -1, 1, 79, 2, Q("0.969279 mm")),
    Sketcher.Constraint("Distance", 1, Q("2.088216 mm")),
    Sketcher.Constraint("Distance", 4, Q("2.088217 mm")),
    Sketcher.Constraint("Distance", 6, Q("2.088216 mm")),
    Sketcher.Constraint("Distance", 9, Q("2.088216 mm")),
    Sketcher.Constraint("Distance", 11, Q("2.088217 mm")),
    Sketcher.Constraint("Distance", 14, Q("2.088216 mm")),
    Sketcher.Constraint("Distance", 16, Q("2.088217 mm")),
    Sketcher.Constraint("Distance", 19, Q("2.088217 mm")),
    Sketcher.Constraint("Distance", 21, Q("2.088216 mm")),
    Sketcher.Constraint("Distance", 24, Q("2.088217 mm")),
    Sketcher.Constraint("Distance", 26, Q("2.088216 mm")),
    Sketcher.Constraint("Distance", 29, Q("2.088216 mm")),
    Sketcher.Constraint("Distance", 31, Q("2.088217 mm")),
    Sketcher.Constraint("Distance", 34, Q("2.088216 mm")),
    Sketcher.Constraint("Distance", 36, Q("2.088217 mm")),
    Sketcher.Constraint("Distance", 39, Q("2.088217 mm")),
    Sketcher.Constraint("Distance", 41, Q("2.088216 mm")),
    Sketcher.Constraint("Distance", 44, Q("2.088217 mm")),
    Sketcher.Constraint("Distance", 46, Q("2.088216 mm")),
    Sketcher.Constraint("Distance", 49, Q("2.088216 mm")),
    Sketcher.Constraint("Distance", 51, Q("2.088217 mm")),
    Sketcher.Constraint("Distance", 54, Q("2.088216 mm")),
    Sketcher.Constraint("Distance", 56, Q("2.088217 mm")),
    Sketcher.Constraint("Distance", 59, Q("2.088217 mm")),
    Sketcher.Constraint("Distance", 61, Q("2.088216 mm")),
    Sketcher.Constraint("Distance", 64, Q("2.088217 mm")),
    Sketcher.Constraint("Distance", 66, Q("2.088216 mm")),
    Sketcher.Constraint("Distance", 69, Q("2.088216 mm")),
    Sketcher.Constraint("Distance", 71, Q("2.088217 mm")),
    Sketcher.Constraint("Distance", 74, Q("2.088216 mm")),
    Sketcher.Constraint("Distance", 76, Q("2.088217 mm")),
    Sketcher.Constraint("Distance", 79, Q("2.088217 mm")),
    Sketcher.Constraint("DistanceX", -1, 1, 0, 3, Q("0.000113 mm")),
    Sketcher.Constraint("DistanceY", -1, 1, 15, 3, Q("0.000113 mm")),
    Sketcher.Constraint("DistanceY", -1, 1, 20, 3, Q("0.000113 mm")),
    Sketcher.Constraint("DistanceX", 35, 3, -1, 1, Q("0.000113 mm")),
    Sketcher.Constraint("DistanceX", 40, 3, -1, 1, Q("0.000113 mm")),
    Sketcher.Constraint("DistanceY", 55, 3, -1, 1, Q("0.000113 mm")),
    Sketcher.Constraint("DistanceY", 60, 3, -1, 1, Q("0.000113 mm")),
    Sketcher.Constraint("DistanceX", -1, 1, 75, 3, Q("0.000113 mm")),
    Sketcher.Constraint("DistanceX", -1, 1, 0, 2, Q("7.241914 mm")),
    Sketcher.Constraint("DistanceX", -1, 1, 1, 2, Q("9.076594 mm")),
    Sketcher.Constraint("DistanceX", -1, 1, 2, 2, Q("8.777153 mm")),
    Sketcher.Constraint("DistanceY", -1, 1, 5, 2, Q("4.573442 mm")),
    Sketcher.Constraint("DistanceX", -1, 1, 6, 2, Q("7.257585 mm")),
    Sketcher.Constraint("DistanceX", -1, 1, 7, 2, Q("6.717742 mm")),
    Sketcher.Constraint("DistanceX", -1, 1, 8, 2, Q("6.196924 mm")),
    Sketcher.Constraint("DistanceX", -1, 1, 10, 2, Q("3.741553 mm")),
    Sketcher.Constraint("DistanceX", -1, 1, 12, 2, Q("3.635616 mm")),
    Sketcher.Constraint("DistanceX", -1, 1, 13, 2, Q("2.947854 mm")),
    Sketcher.Constraint("DistanceX", 21, 2, -1, 1, Q("2.947854 mm")),
    Sketcher.Constraint("DistanceX", 22, 2, -1, 1, Q("3.635616 mm")),
    Sketcher.Constraint("DistanceX", 25, 2, -1, 1, Q("4.573442 mm")),
    Sketcher.Constraint("DistanceX", 26, 2, -1, 1, Q("6.196924 mm")),
    Sketcher.Constraint("DistanceX", 27, 2, -1, 1, Q("6.717742 mm")),
    Sketcher.Constraint("DistanceX", 28, 2, -1, 1, Q("7.257585 mm")),
    Sketcher.Constraint("DistanceY", -1, 1, 30, 2, Q("3.741553 mm")),
    Sketcher.Constraint("DistanceX", 32, 2, -1, 1, Q("8.777153 mm")),
    Sketcher.Constraint("DistanceX", 33, 2, -1, 1, Q("9.076594 mm")),
    Sketcher.Constraint("DistanceX", 41, 2, -1, 1, Q("9.076594 mm")),
    Sketcher.Constraint("DistanceX", 42, 2, -1, 1, Q("8.777153 mm")),
    Sketcher.Constraint("DistanceY", 45, 2, -1, 1, Q("4.573442 mm")),
    Sketcher.Constraint("DistanceX", 46, 2, -1, 1, Q("7.257585 mm")),
    Sketcher.Constraint("DistanceX", 47, 2, -1, 1, Q("6.717742 mm")),
    Sketcher.Constraint("DistanceX", 48, 2, -1, 1, Q("6.196924 mm")),
    Sketcher.Constraint("DistanceX", 50, 2, -1, 1, Q("3.741553 mm")),
    Sketcher.Constraint("DistanceX", 52, 2, -1, 1, Q("3.635616 mm")),
    Sketcher.Constraint("DistanceX", 53, 2, -1, 1, Q("2.947854 mm")),
    Sketcher.Constraint("DistanceX", -1, 1, 61, 2, Q("2.947854 mm")),
    Sketcher.Constraint("DistanceX", -1, 1, 62, 2, Q("3.635616 mm")),
    Sketcher.Constraint("DistanceX", -1, 1, 65, 2, Q("4.573442 mm")),
    Sketcher.Constraint("DistanceX", -1, 1, 66, 2, Q("6.196924 mm")),
    Sketcher.Constraint("DistanceX", -1, 1, 67, 2, Q("6.717742 mm")),
    Sketcher.Constraint("DistanceX", -1, 1, 68, 2, Q("7.257585 mm")),
    Sketcher.Constraint("DistanceY", 70, 2, -1, 1, Q("3.741553 mm")),
    Sketcher.Constraint("DistanceX", -1, 1, 72, 2, Q("8.777153 mm")),
])
pad1 = body.newObject("PartDesign::Pad", "Pad")
pad1.Profile = sketch1
pad1.setExpression("Length", "Params.pad1_length")

# Sketch on XY plane
sketch2 = body.newObject("Sketcher::SketchObject", "Sketch001")
sketch2.AttachmentSupport = (doc.getObject("XY_Plane"), [""])
sketch2.MapMode = "FlatFace"
sketch2.AttachmentOffset = App.Placement(Vector(0, 0, 2), App.Rotation())
sketch2.addGeometry(Part.Circle(Vector(0, 0, 0), Vector(0, 0, 1), 1), False)
sketch2.addConstraint([
    Sketcher.Constraint("Coincident", 0, 3, -1, 1),
    Sketcher.Constraint("Diameter", 0, Q("2 mm")),
])
sketch2.setExpression("Constraints[1]", "Params.sketch2_diameter")
pocket1 = body.newObject("PartDesign::Pocket", "Pocket")
pocket1.Profile = sketch2
pocket1.Type = "ThroughAll"

doc.recompute()
